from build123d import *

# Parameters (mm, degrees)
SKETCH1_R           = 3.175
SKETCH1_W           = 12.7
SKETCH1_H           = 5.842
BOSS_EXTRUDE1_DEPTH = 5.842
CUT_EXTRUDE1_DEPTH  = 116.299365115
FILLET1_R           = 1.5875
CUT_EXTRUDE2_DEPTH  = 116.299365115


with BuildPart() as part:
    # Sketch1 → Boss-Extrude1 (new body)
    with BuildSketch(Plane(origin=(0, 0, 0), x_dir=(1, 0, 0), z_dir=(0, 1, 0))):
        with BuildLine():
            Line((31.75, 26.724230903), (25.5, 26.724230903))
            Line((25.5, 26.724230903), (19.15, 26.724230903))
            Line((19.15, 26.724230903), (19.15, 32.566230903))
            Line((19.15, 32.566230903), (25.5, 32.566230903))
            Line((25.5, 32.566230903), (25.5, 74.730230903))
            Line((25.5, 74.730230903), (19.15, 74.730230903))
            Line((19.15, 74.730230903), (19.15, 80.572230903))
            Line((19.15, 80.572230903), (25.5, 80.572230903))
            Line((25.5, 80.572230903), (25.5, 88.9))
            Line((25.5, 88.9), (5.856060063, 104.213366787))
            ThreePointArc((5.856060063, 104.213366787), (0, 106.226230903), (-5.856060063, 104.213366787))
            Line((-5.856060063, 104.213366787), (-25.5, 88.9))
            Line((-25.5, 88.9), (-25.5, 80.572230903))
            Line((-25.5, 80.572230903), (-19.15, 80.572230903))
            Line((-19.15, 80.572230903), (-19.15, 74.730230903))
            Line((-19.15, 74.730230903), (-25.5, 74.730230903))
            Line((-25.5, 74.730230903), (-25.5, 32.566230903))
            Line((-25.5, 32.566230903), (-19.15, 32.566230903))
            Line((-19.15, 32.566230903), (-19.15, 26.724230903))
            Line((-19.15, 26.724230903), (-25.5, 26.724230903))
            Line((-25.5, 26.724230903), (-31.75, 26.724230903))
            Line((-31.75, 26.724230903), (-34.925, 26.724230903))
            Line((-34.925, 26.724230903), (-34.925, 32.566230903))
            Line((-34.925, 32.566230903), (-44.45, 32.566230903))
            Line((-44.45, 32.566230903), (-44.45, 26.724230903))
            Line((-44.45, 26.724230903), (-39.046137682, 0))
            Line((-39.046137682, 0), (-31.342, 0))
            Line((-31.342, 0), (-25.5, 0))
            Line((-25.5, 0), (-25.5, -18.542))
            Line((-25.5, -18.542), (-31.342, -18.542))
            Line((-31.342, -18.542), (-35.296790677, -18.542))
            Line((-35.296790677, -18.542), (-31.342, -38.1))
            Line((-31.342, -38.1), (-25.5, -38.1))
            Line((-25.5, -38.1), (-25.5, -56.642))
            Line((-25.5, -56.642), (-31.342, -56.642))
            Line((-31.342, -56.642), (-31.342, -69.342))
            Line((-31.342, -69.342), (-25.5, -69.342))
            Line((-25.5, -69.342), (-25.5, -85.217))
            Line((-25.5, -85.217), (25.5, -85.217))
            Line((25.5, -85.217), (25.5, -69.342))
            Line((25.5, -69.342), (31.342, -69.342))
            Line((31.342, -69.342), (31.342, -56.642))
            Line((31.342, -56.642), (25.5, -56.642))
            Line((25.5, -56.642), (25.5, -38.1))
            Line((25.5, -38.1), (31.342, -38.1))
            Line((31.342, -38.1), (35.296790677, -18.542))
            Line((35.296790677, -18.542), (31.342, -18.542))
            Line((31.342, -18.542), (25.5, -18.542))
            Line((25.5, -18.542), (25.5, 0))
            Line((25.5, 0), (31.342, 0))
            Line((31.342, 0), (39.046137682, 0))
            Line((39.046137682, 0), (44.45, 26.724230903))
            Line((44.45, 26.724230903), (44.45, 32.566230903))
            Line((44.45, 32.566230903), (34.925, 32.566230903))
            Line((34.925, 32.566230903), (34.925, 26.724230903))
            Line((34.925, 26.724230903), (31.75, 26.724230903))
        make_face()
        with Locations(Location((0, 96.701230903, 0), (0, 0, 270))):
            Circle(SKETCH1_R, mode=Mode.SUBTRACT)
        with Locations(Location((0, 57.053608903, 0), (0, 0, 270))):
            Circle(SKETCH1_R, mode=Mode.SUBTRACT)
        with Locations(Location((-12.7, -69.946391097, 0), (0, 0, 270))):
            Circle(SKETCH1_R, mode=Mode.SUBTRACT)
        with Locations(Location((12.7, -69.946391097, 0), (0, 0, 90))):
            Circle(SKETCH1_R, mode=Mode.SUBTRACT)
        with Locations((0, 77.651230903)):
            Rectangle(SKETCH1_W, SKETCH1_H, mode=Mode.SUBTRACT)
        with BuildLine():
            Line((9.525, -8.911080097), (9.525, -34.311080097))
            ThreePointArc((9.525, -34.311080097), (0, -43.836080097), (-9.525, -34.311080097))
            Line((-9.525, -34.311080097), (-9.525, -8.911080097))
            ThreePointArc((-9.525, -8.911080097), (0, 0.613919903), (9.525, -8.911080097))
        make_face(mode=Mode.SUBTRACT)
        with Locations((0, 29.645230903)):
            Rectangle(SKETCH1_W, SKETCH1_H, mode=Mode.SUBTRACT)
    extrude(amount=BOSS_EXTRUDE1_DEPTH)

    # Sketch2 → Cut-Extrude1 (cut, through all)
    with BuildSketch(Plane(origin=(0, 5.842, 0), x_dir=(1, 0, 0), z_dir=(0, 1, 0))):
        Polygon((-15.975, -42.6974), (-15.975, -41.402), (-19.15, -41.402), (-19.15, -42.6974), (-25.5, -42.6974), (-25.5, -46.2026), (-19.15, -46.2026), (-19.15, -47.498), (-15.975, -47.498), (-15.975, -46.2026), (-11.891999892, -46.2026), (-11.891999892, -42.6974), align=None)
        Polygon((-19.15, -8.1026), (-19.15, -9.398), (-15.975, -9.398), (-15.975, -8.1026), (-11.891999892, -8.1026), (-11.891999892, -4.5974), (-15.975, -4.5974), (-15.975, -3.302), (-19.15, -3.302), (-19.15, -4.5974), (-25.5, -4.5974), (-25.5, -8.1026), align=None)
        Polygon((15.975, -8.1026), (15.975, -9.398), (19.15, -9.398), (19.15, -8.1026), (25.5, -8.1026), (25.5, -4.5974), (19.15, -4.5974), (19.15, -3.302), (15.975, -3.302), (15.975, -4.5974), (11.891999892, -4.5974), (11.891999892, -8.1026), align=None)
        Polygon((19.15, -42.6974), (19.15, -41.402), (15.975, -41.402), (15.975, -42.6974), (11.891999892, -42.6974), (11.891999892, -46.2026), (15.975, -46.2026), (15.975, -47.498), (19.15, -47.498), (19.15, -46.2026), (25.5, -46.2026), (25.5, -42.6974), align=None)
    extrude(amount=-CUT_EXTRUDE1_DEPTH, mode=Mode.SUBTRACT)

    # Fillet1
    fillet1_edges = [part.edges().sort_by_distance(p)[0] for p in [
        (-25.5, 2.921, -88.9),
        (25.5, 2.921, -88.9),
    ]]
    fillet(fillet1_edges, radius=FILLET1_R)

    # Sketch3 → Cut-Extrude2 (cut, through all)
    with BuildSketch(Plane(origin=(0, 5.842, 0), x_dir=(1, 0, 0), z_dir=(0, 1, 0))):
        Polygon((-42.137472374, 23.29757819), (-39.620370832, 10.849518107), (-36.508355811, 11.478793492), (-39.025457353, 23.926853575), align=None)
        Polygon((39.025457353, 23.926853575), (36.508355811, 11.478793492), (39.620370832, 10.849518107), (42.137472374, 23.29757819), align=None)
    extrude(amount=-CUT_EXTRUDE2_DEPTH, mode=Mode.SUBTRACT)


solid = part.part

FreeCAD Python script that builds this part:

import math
import FreeCAD as App
import Part
import Sketcher
from FreeCAD import Vector
Q = App.Units.Quantity


def edges_at(feature, points):
    """Names of the edges that pass closest to the given points."""
    edges = feature.Shape.Edges
    near = lambda p: min(range(len(edges)), key=lambda i: edges[i].distToShape(Part.Vertex(*p))[0])
    return sorted({f"Edge{near(p) + 1}" for p in points})

doc = App.newDocument("Part")
body = doc.addObject("PartDesign::Body", "Body")

sketch1 = body.newObject("Sketcher::SketchObject", "Sketch")
sketch1.AttachmentSupport = (doc.getObject("XZ_Plane"), [""])
sketch1.MapMode = "FlatFace"
sketch1.addGeometry([
    Part.LineSegment(Vector(19.1, -26.7, 0), Vector(19.1, -32.6, 0)),
    Part.LineSegment(Vector(19.1, -32.6, 0), Vector(25.5, -32.6, 0)),
    Part.LineSegment(Vector(25.5, -32.6, 0), Vector(25.5, -74.7, 0)),
    Part.LineSegment(Vector(25.5, -74.7, 0), Vector(19.1, -74.7, 0)),
    Part.LineSegment(Vector(19.1, -74.7, 0), Vector(19.1, -80.6, 0)),
    Part.LineSegment(Vector(19.1, -80.6, 0), Vector(25.5, -80.6, 0)),
    Part.LineSegment(Vector(25.5, -80.6, 0), Vector(25.5, -88.9, 0)),
    Part.LineSegment(Vector(25.5, -88.9, 0), Vector(5.9, -104.2, 0)),
    Part.ArcOfCircle(Part.Circle(Vector(0, -96.7, 0), Vector(0, 0, 1), 9.5), math.radians(-128), math.radians(-52)),
    Part.LineSegment(Vector(-5.9, -104.2, 0), Vector(-25.5, -88.9, 0)),
    Part.LineSegment(Vector(-25.5, -88.9, 0), Vector(-25.5, -80.6, 0)),
    Part.LineSegment(Vector(-25.5, -80.6, 0), Vector(-19.1, -80.6, 0)),
    Part.LineSegment(Vector(-19.1, -80.6, 0), Vector(-19.1, -74.7, 0)),
    Part.LineSegment(Vector(-19.1, -74.7, 0), Vector(-25.5, -74.7, 0)),
    Part.LineSegment(Vector(-25.5, -74.7, 0), Vector(-25.5, -32.6, 0)),
    Part.LineSegment(Vector(-25.5, -32.6, 0), Vector(-19.1, -32.6, 0)),
    Part.LineSegment(Vector(-19.1, -32.6, 0), Vector(-19.1, -26.7, 0)),
    Part.LineSegment(Vector(-19.1, -26.7, 0), Vector(-34.9, -26.7, 0)),
    Part.LineSegment(Vector(-34.9, -26.7, 0), Vector(-34.9, -32.6, 0)),
    Part.LineSegment(Vector(-34.9, -32.6, 0), Vector(-44.5, -32.6, 0)),
    Part.LineSegment(Vector(-44.5, -32.6, 0), Vector(-44.5, -26.7, 0)),
    Part.LineSegment(Vector(-44.5, -26.7, 0), Vector(-39, 0, 0)),
    Part.LineSegment(Vector(-39, 0, 0), Vector(-25.5, 0, 0)),
    Part.LineSegment(Vector(-25.5, 0, 0), Vector(-25.5, 18.5, 0)),
    Part.LineSegment(Vector(-25.5, 18.5, 0), Vector(-35.3, 18.5, 0)),
    Part.LineSegment(Vector(-35.3, 18.5, 0), Vector(-31.3, 38.1, 0)),
    Part.LineSegment(Vector(-31.3, 38.1, 0), Vector(-25.5, 38.1, 0)),
    Part.LineSegment(Vector(-25.5, 38.1, 0), Vector(-25.5, 56.6, 0)),
    Part.LineSegment(Vector(-25.5, 56.6, 0), Vector(-31.3, 56.6, 0)),
    Part.LineSegment(Vector(-31.3, 56.6, 0), Vector(-31.3, 69.3, 0)),
    Part.LineSegment(Vector(-31.3, 69.3, 0), Vector(-25.5, 69.3, 0)),
    Part.LineSegment(Vector(-25.5, 69.3, 0), Vector(-25.5, 85.2, 0)),
    Part.LineSegment(Vector(-25.5, 85.2, 0), Vector(25.5, 85.2, 0)),
    Part.LineSegment(Vector(25.5, 85.2, 0), Vector(25.5, 69.3, 0)),
    Part.LineSegment(Vector(25.5, 69.3, 0), Vector(31.3, 69.3, 0)),
    Part.LineSegment(Vector(31.3, 69.3, 0), Vector(31.3, 56.6, 0)),
    Part.LineSegment(Vector(31.3, 56.6, 0), Vector(25.5, 56.6, 0)),
    Part.LineSegment(Vector(25.5, 56.6, 0), Vector(25.5, 38.1, 0)),
    Part.LineSegment(Vector(25.5, 38.1, 0), Vector(31.3, 38.1, 0)),
    Part.LineSegment(Vector(31.3, 38.1, 0), Vector(35.3, 18.5, 0)),
    Part.LineSegment(Vector(35.3, 18.5, 0), Vector(25.5, 18.5, 0)),
    Part.LineSegment(Vector(25.5, 18.5, 0), Vector(25.5, 0, 0)),
    Part.LineSegment(Vector(25.5, 0, 0), Vector(39, 0, 0)),
    Part.LineSegment(Vector(39, 0, 0), Vector(44.5, -26.7, 0)),
    Part.LineSegment(Vector(44.5, -26.7, 0), Vector(44.5, -32.6, 0)),
    Part.LineSegment(Vector(44.5, -32.6, 0), Vector(34.9, -32.6, 0)),
    Part.LineSegment(Vector(34.9, -32.6, 0), Vector(34.9, -26.7, 0)),
    Part.LineSegment(Vector(34.9, -26.7, 0), Vector(19.1, -26.7, 0)),
    Part.Circle(Vector(-12.7, 69.9, 0), Vector(0, 0, 1), 3.2),
    Part.Circle(Vector(12.7, 69.9, 0), Vector(0, 0, 1), 3.2),
    Part.ArcOfCircle(Part.Circle(Vector(0, 8.9, 0), Vector(0, 0, 1), 9.5), math.radians(180), math.radians(360)),
    Part.LineSegment(Vector(9.5, 8.9, 0), Vector(9.5, 34.3, 0)),
    Part.ArcOfCircle(Part.Circle(Vector(0, 34.3, 0), Vector(0, 0, 1), 9.5), math.radians(0), math.radians(180)),
    Part.LineSegment(Vector(-9.5, 34.3, 0), Vector(-9.5, 8.9, 0)),
    Part.LineSegment(Vector(6.3, -26.7, 0), Vector(-6.3, -26.7, 0)),
    Part.LineSegment(Vector(-6.3, -26.7, 0), Vector(-6.3, -32.6, 0)),
    Part.LineSegment(Vector(-6.3, -32.6, 0), Vector(6.3, -32.6, 0)),
    Part.LineSegment(Vector(6.3, -32.6, 0), Vector(6.3, -26.7, 0)),
    Part.Circle(Vector(0, -57.1, 0), Vector(0, 0, 1), 3.2),
    Part.LineSegment(Vector(6.3, -74.7, 0), Vector(-6.3, -74.7, 0)),
    Part.LineSegment(Vector(-6.3, -74.7, 0), Vector(-6.3, -80.6, 0)),
    Part.LineSegment(Vector(-6.3, -80.6, 0), Vector(6.3, -80.6, 0)),
    Part.LineSegment(Vector(6.3, -80.6, 0), Vector(6.3, -74.7, 0)),
    Part.Circle(Vector(0, -96.7, 0), Vector(0, 0, 1), 3.2),
], False)
sketch1.addConstraint([
    Sketcher.Constraint("Coincident", 0, 2, 1, 1),
    Sketcher.Constraint("Coincident", 1, 2, 2, 1),
    Sketcher.Constraint("Coincident", 2, 2, 3, 1),
    Sketcher.Constraint("Coincident", 3, 2, 4, 1),
    Sketcher.Constraint("Coincident", 4, 2, 5, 1),
    Sketcher.Constraint("Coincident", 5, 2, 6, 1),
    Sketcher.Constraint("Coincident", 6, 2, 7, 1),
    Sketcher.Constraint("Tangent", 7, 2, 8, 2),
    Sketcher.Constraint("Tangent", 8, 1, 9, 1),
    Sketcher.Constraint("Coincident", 9, 2, 10, 1),
    Sketcher.Constraint("Coincident", 10, 2, 11, 1),
    Sketcher.Constraint("Coincident", 11, 2, 12, 1),
    Sketcher.Constraint("Coincident", 12, 2, 13, 1),
    Sketcher.Constraint("Coincident", 13, 2, 14, 1),
    Sketcher.Constraint("Coincident", 14, 2, 15, 1),
    Sketcher.Constraint("Coincident", 15, 2, 16, 1),
    Sketcher.Constraint("Coincident", 16, 2, 17, 1),
    Sketcher.Constraint("Coincident", 17, 2, 18, 1),
    Sketcher.Constraint("Coincident", 18, 2, 19, 1),
    Sketcher.Constraint("Coincident", 19, 2, 20, 1),
    Sketcher.Constraint("Coincident", 20, 2, 21, 1),
    Sketcher.Constraint("Coincident", 21, 2, 22, 1),
    Sketcher.Constraint("Coincident", 22, 2, 23, 1),
    Sketcher.Constraint("Coincident", 23, 2, 24, 1),
    Sketcher.Constraint("Coincident", 24, 2, 25, 1),
    Sketcher.Constraint("Coincident", 25, 2, 26, 1),
    Sketcher.Constraint("Coincident", 26, 2, 27, 1),
    Sketcher.Constraint("Coincident", 27, 2, 28, 1),
    Sketcher.Constraint("Coincident", 28, 2, 29, 1),
    Sketcher.Constraint("Coincident", 29, 2, 30, 1),
    Sketcher.Constraint("Coincident", 30, 2, 31, 1),
    Sketcher.Constraint("Coincident", 31, 2, 32, 1),
    Sketcher.Constraint("Coincident", 32, 2, 33, 1),
    Sketcher.Constraint("Coincident", 33, 2, 34, 1),
    Sketcher.Constraint("Coincident", 34, 2, 35, 1),
    Sketcher.Constraint("Coincident", 35, 2, 36, 1),
    Sketcher.Constraint("Coincident", 36, 2, 37, 1),
    Sketcher.Constraint("Coincident", 37, 2, 38, 1),
    Sketcher.Constraint("Coincident", 38, 2, 39, 1),
    Sketcher.Constraint("Coincident", 39, 2, 40, 1),
    Sketcher.Constraint("Coincident", 40, 2, 41, 1),
    Sketcher.Constraint("Coincident", 41, 2, 42, 1),
    Sketcher.Constraint("Coincident", 42, 2, 43, 1),
    Sketcher.Constraint("Coincident", 43, 2, 44, 1),
    Sketcher.Constraint("Coincident", 44, 2, 45, 1),
    Sketcher.Constraint("Coincident", 45, 2, 46, 1),
    Sketcher.Constraint("Coincident", 46, 2, 47, 1),
    Sketcher.Constraint("Coincident", 47, 2, 0, 1),
    Sketcher.Constraint("Tangent", 50, 2, 51, 1),
    Sketcher.Constraint("Tangent", 51, 2, 52, 1),
    Sketcher.Constraint("Tangent", 52, 2, 53, 1),
    Sketcher.Constraint("Tangent", 53, 2, 50, 1),
    Sketcher.Constraint("Coincident", 54, 2, 55, 1),
    Sketcher.Constraint("Coincident", 55, 2, 56, 1),
    Sketcher.Constraint("Coincident", 56, 2, 57, 1),
    Sketcher.Constraint("Coincident", 57, 2, 54, 1),
    Sketcher.Constraint("Coincident", 59, 2, 60, 1),
    Sketcher.Constraint("Coincident", 60, 2, 61, 1),
    Sketcher.Constraint("Coincident", 61, 2, 62, 1),
    Sketcher.Constraint("Coincident", 62, 2, 59, 1),
    Sketcher.Constraint("Vertical", 0),
    Sketcher.Constraint("Horizontal", 1),
    Sketcher.Constraint("Vertical", 2),
    Sketcher.Constraint("Horizontal", 3),
    Sketcher.Constraint("Vertical", 4),
    Sketcher.Constraint("Horizontal", 5),
    Sketcher.Constraint("Vertical", 6),
    Sketcher.Constraint("Vertical", 10),
    Sketcher.Constraint("Horizontal", 11),
    Sketcher.Constraint("Vertical", 12),
    Sketcher.Constraint("Horizontal", 13),
    Sketcher.Constraint("Vertical", 14),
    Sketcher.Constraint("Horizontal", 15),
    Sketcher.Constraint("Vertical", 16),
    Sketcher.Constraint("Horizontal", 17),
    Sketcher.Constraint("Vertical", 18),
    Sketcher.Constraint("Horizontal", 19),
    Sketcher.Constraint("Vertical", 20),
    Sketcher.Constraint("Horizontal", 22),
    Sketcher.Constraint("Vertical", 23),
    Sketcher.Constraint("Horizontal", 24),
    Sketcher.Constraint("Horizontal", 26),
    Sketcher.Constraint("Vertical", 27),
    Sketcher.Constraint("Horizontal", 28),
    Sketcher.Constraint("Vertical", 29),
    Sketcher.Constraint("Horizontal", 30),
    Sketcher.Constraint("Vertical", 31),
    Sketcher.Constraint("Horizontal", 32),
    Sketcher.Constraint("Vertical", 33),
    Sketcher.Constraint("Horizontal", 34),
    Sketcher.Constraint("Vertical", 35),
    Sketcher.Constraint("Horizontal", 36),
    Sketcher.Constraint("Vertical", 37),
    Sketcher.Constraint("Horizontal", 38),
    Sketcher.Constraint("Horizontal", 40),
    Sketcher.Constraint("Vertical", 41),
    Sketcher.Constraint("Horizontal", 42),
    Sketcher.Constraint("Vertical", 44),
    Sketcher.Constraint("Horizontal", 45),
    Sketcher.Constraint("Vertical", 46),
    Sketcher.Constraint("Horizontal", 47),
    Sketcher.Constraint("Vertical", 51),
    Sketcher.Constraint("Vertical", 53),
    Sketcher.Constraint("Horizontal", 54),
    Sketcher.Constraint("Vertical", 55),
    Sketcher.Constraint("Horizontal", 56),
    Sketcher.Constraint("Vertical", 57),
    Sketcher.Constraint("Horizontal", 59),
    Sketcher.Constraint("Vertical", 60),
    Sketcher.Constraint("Horizontal", 61),
    Sketcher.Constraint("Vertical", 62),
    Sketcher.Constraint("Coincident", 63, 3, 8, 3),
    Sketcher.Constraint("Equal", 48, 49),
    Sketcher.Constraint("Equal", 8, 50),
    Sketcher.Constraint("Equal", 49, 58),
    Sketcher.Constraint("Equal", 58, 63),
    Sketcher.Constraint("Symmetric", 22, 2, 41, 2, -1, 1),
    Sketcher.Constraint("Symmetric", 48, 3, 49, 3, -2),
    Sketcher.Constraint("Symmetric", 7, 2, 8, 1, -2),
    Sketcher.Constraint("Symmetric", 5, 2, 10, 2, -2),
    Sketcher.Constraint("Symmetric", 3, 2, 12, 2, -2),
    Sketcher.Constraint("Symmetric", 1, 2, 14, 2, -2),
    Sketcher.Constraint("Symmetric", 30, 2, 33, 2, -2),
    Sketcher.Constraint("Symmetric", 28, 2, 35, 2, -2),
    Sketcher.Constraint("Symmetric", 26, 2, 37, 2, -2),
    Sketcher.Constraint("Symmetric", 24, 2, 39, 2, -2),
    Sketcher.Constraint("Symmetric", 21, 2, 42, 2, -2),
    Sketcher.Constraint("Symmetric", 20, 2, 43, 2, -2),
    Sketcher.Constraint("Symmetric", 18, 2, 45, 2, -2),
    Sketcher.Constraint("Symmetric", 16, 2, 47, 2, -2),
    Sketcher.Constraint("PointOnObject", 50, 3, -2),
    Sketcher.Constraint("PointOnObject", 58, 3, -2),
    Sketcher.Constraint("Parallel", 21, 25),
    Sketcher.Constraint("Parallel", 39, 43),
    Sketcher.Constraint("Horizontal", 15, 2, 18, 2),
    Sketcher.Constraint("Horizontal", 17, 2, 20, 2),
    Sketcher.Constraint("Horizontal", 47, 2, 54, 2),
    Sketcher.Constraint("Horizontal", 45, 2, 55, 2),
    Sketcher.Constraint("Horizontal", 13, 2, 59, 2),
    Sketcher.Constraint("Horizontal", 11, 2, 60, 2),
    Sketcher.Constraint("Vertical", 0, 2, 3, 2),
    Sketcher.Constraint("Vertical", 2, 2, 5, 2),
    Sketcher.Constraint("Vertical", 14, 2, 22, 2),
    Sketcher.Constraint("Vertical", 23, 2, 26, 2),
    Sketcher.Constraint("Vertical", 25, 2, 28, 2),
    Sketcher.Constraint("Vertical", 27, 2, 30, 2),
    Sketcher.Constraint("Vertical", 55, 2, 59, 2),
    Sketcher.Constraint("Vertical", 57, 2, 61, 2),
    Sketcher.Constraint("Equal", 38, 0),
    Sketcher.Constraint("Equal", 0, 4),
    Sketcher.Constraint("Equal", 23, 27),
    Sketcher.Constraint("Equal", 61, 29),
    Sketcher.Constraint("Diameter", 48, Q("0.25 in")),
    Sketcher.Constraint("DistanceY", 51, 1, 51, 2, Q("1 in")),
    Sketcher.Constraint("DistanceX", 54, 2, 54, 1, Q("0.5 in")),
    Sketcher.Constraint("Radius", 8, Q("0.375 in")),
    Sketcher.Constraint("DistanceX", 1, 1, 1, 2, Q("0.25 in")),
    Sketcher.Constraint("DistanceX", 26, 1, 26, 2, Q("0.23 in")),
    Sketcher.Constraint("DistanceY", 2, 2, 2, 1, Q("1.66 in")),
    Sketcher.Constraint("DistanceY", 23, 1, 23, 2, Q("0.73 in")),
    Sketcher.Constraint("DistanceX", 48, 3, -1, 1, Q("0.5 in")),
    Sketcher.Constraint("DistanceY", 6, 2, -1, 1, Q("3.5 in")),
    Sketcher.Constraint("DistanceY", -1, 1, 25, 2, Q("1.5 in")),
    Sketcher.Constraint("DistanceX", 19, 2, 19, 1, Q("0.375 in")),
    Sketcher.Constraint("DistanceY", 31, 1, 31, 2, Q("0.625 in")),
    Sketcher.Constraint("DistanceX", 19, 2, -1, 1, Q("1.75 in")),
    Sketcher.Constraint("DistanceX", 54, 2, -1, 1, Q("0.25 in")),
    Sketcher.Constraint("DistanceX", 17, 2, 17, 1, Q("15.775 mm")),
    Sketcher.Constraint("Distance", 7, Q("24.9075 mm")),
    Sketcher.Constraint("DistanceX", 24, 2, 24, 1, Q("9.796791 mm")),
    Sketcher.Constraint("DistanceY", 6, 2, 6, 1, Q("8.327769 mm")),
    Sketcher.Constraint("DistanceY", -1, 1, 48, 3, Q("69.946391 mm")),
    Sketcher.Constraint("DistanceY", -1, 1, 50, 3, Q("8.91108 mm")),
    Sketcher.Constraint("DistanceY", 58, 3, -1, 1, Q("57.053609 mm")),
])
pad1 = body.newObject("PartDesign::Pad", "Pad")
pad1.Profile = sketch1
pad1.Length = Q("0.23 in")
pad1.Reversed = True

sketch2 = body.newObject("Sketcher::SketchObject", "Sketch001")
sketch2.AttachmentSupport = (doc.getObject("XZ_Plane"), [""])
sketch2.MapMode = "FlatFace"
sketch2.AttachmentOffset = App.Placement(Vector(0, 0, -0.23 * 25.4), App.Rotation())
sketch2.addGeometry([
    Part.LineSegment(Vector(-16, 42.7, 0), Vector(-16, 41.4, 0)),
    Part.LineSegment(Vector(-16, 41.4, 0), Vector(-19.1, 41.4, 0)),
    Part.LineSegment(Vector(-19.1, 41.4, 0), Vector(-19.1, 42.7, 0)),
    Part.LineSegment(Vector(-19.1, 42.7, 0), Vector(-25.5, 42.7, 0)),
    Part.LineSegment(Vector(-25.5, 42.7, 0), Vector(-25.5, 46.2, 0)),
    Part.LineSegment(Vector(-25.5, 46.2, 0), Vector(-19.1, 46.2, 0)),
    Part.LineSegment(Vector(-19.1, 46.2, 0), Vector(-19.1, 47.5, 0)),
    Part.LineSegment(Vector(-19.1, 47.5, 0), Vector(-16, 47.5, 0)),
    Part.LineSegment(Vector(-16, 47.5, 0), Vector(-16, 46.2, 0)),
    Part.LineSegment(Vector(-16, 46.2, 0), Vector(-11.9, 46.2, 0)),
    Part.LineSegment(Vector(-11.9, 46.2, 0), Vector(-11.9, 42.7, 0)),
    Part.LineSegment(Vector(-11.9, 42.7, 0), Vector(-16, 42.7, 0)),
    Part.LineSegment(Vector(-19.1, 8.1, 0), Vector(-19.1, 9.4, 0)),
    Part.LineSegment(Vector(-19.1, 9.4, 0), Vector(-16, 9.4, 0)),
    Part.LineSegment(Vector(-16, 9.4, 0), Vector(-16, 8.1, 0)),
    Part.LineSegment(Vector(-16, 8.1, 0), Vector(-11.9, 8.1, 0)),
    Part.LineSegment(Vector(-11.9, 8.1, 0), Vector(-11.9, 4.6, 0)),
    Part.LineSegment(Vector(-11.9, 4.6, 0), Vector(-16, 4.6, 0)),
    Part.LineSegment(Vector(-16, 4.6, 0), Vector(-16, 3.3, 0)),
    Part.LineSegment(Vector(-16, 3.3, 0), Vector(-19.1, 3.3, 0)),
    Part.LineSegment(Vector(-19.1, 3.3, 0), Vector(-19.1, 4.6, 0)),
    Part.LineSegment(Vector(-19.1, 4.6, 0), Vector(-25.5, 4.6, 0)),
    Part.LineSegment(Vector(-25.5, 4.6, 0), Vector(-25.5, 8.1, 0)),
    Part.LineSegment(Vector(-25.5, 8.1, 0), Vector(-19.1, 8.1, 0)),
    Part.LineSegment(Vector(16, 8.1, 0), Vector(16, 9.4, 0)),
    Part.LineSegment(Vector(16, 9.4, 0), Vector(19.1, 9.4, 0)),
    Part.LineSegment(Vector(19.1, 9.4, 0), Vector(19.1, 8.1, 0)),
    Part.LineSegment(Vector(19.1, 8.1, 0), Vector(25.5, 8.1, 0)),
    Part.LineSegment(Vector(25.5, 8.1, 0), Vector(25.5, 4.6, 0)),
    Part.LineSegment(Vector(25.5, 4.6, 0), Vector(19.1, 4.6, 0)),
    Part.LineSegment(Vector(19.1, 4.6, 0), Vector(19.1, 3.3, 0)),
    Part.LineSegment(Vector(19.1, 3.3, 0), Vector(16, 3.3, 0)),
    Part.LineSegment(Vector(16, 3.3, 0), Vector(16, 4.6, 0)),
    Part.LineSegment(Vector(16, 4.6, 0), Vector(11.9, 4.6, 0)),
    Part.LineSegment(Vector(11.9, 4.6, 0), Vector(11.9, 8.1, 0)),
    Part.LineSegment(Vector(11.9, 8.1, 0), Vector(16, 8.1, 0)),
    Part.LineSegment(Vector(19.1, 42.7, 0), Vector(19.1, 41.4, 0)),
    Part.LineSegment(Vector(19.1, 41.4, 0), Vector(16, 41.4, 0)),
    Part.LineSegment(Vector(16, 41.4, 0), Vector(16, 42.7, 0)),
    Part.LineSegment(Vector(16, 42.7, 0), Vector(11.9, 42.7, 0)),
    Part.LineSegment(Vector(11.9, 42.7, 0), Vector(11.9, 46.2, 0)),
    Part.LineSegment(Vector(11.9, 46.2, 0), Vector(16, 46.2, 0)),
    Part.LineSegment(Vector(16, 46.2, 0), Vector(16, 47.5, 0)),
    Part.LineSegment(Vector(16, 47.5, 0), Vector(19.1, 47.5, 0)),
    Part.LineSegment(Vector(19.1, 47.5, 0), Vector(19.1, 46.2, 0)),
    Part.LineSegment(Vector(19.1, 46.2, 0), Vector(25.5, 46.2, 0)),
    Part.LineSegment(Vector(25.5, 46.2, 0), Vector(25.5, 42.7, 0)),
    Part.LineSegment(Vector(25.5, 42.7, 0), Vector(19.1, 42.7, 0)),
], False)
sketch2.addConstraint([
    Sketcher.Constraint("Coincident", 0, 2, 1, 1),
    Sketcher.Constraint("Coincident", 1, 2, 2, 1),
    Sketcher.Constraint("Coincident", 2, 2, 3, 1),
    Sketcher.Constraint("Coincident", 3, 2, 4, 1),
    Sketcher.Constraint("Coincident", 4, 2, 5, 1),
    Sketcher.Constraint("Coincident", 5, 2, 6, 1),
    Sketcher.Constraint("Coincident", 6, 2, 7, 1),
    Sketcher.Constraint("Coincident", 7, 2, 8, 1),
    Sketcher.Constraint("Coincident", 8, 2, 9, 1),
    Sketcher.Constraint("Coincident", 9, 2, 10, 1),
    Sketcher.Constraint("Coincident", 10, 2, 11, 1),
    Sketcher.Constraint("Coincident", 11, 2, 0, 1),
    Sketcher.Constraint("Coincident", 12, 2, 13, 1),
    Sketcher.Constraint("Coincident", 13, 2, 14, 1),
    Sketcher.Constraint("Coincident", 14, 2, 15, 1),
    Sketcher.Constraint("Coincident", 15, 2, 16, 1),
    Sketcher.Constraint("Coincident", 16, 2, 17, 1),
    Sketcher.Constraint("Coincident", 17, 2, 18, 1),
    Sketcher.Constraint("Coincident", 18, 2, 19, 1),
    Sketcher.Constraint("Coincident", 19, 2, 20, 1),
    Sketcher.Constraint("Coincident", 20, 2, 21, 1),
    Sketcher.Constraint("Coincident", 21, 2, 22, 1),
    Sketcher.Constraint("Coincident", 22, 2, 23, 1),
    Sketcher.Constraint("Coincident", 23, 2, 12, 1),
    Sketcher.Constraint("Coincident", 24, 2, 25, 1),
    Sketcher.Constraint("Coincident", 25, 2, 26, 1),
    Sketcher.Constraint("Coincident", 26, 2, 27, 1),
    Sketcher.Constraint("Coincident", 27, 2, 28, 1),
    Sketcher.Constraint("Coincident", 28, 2, 29, 1),
    Sketcher.Constraint("Coincident", 29, 2, 30, 1),
    Sketcher.Constraint("Coincident", 30, 2, 31, 1),
    Sketcher.Constraint("Coincident", 31, 2, 32, 1),
    Sketcher.Constraint("Coincident", 32, 2, 33, 1),
    Sketcher.Constraint("Coincident", 33, 2, 34, 1),
    Sketcher.Constraint("Coincident", 34, 2, 35, 1),
    Sketcher.Constraint("Coincident", 35, 2, 24, 1),
    Sketcher.Constraint("Coincident", 36, 2, 37, 1),
    Sketcher.Constraint("Coincident", 37, 2, 38, 1),
    Sketcher.Constraint("Coincident", 38, 2, 39, 1),
    Sketcher.Constraint("Coincident", 39, 2, 40, 1),
    Sketcher.Constraint("Coincident", 40, 2, 41, 1),
    Sketcher.Constraint("Coincident", 41, 2, 42, 1),
    Sketcher.Constraint("Coincident", 42, 2, 43, 1),
    Sketcher.Constraint("Coincident", 43, 2, 44, 1),
    Sketcher.Constraint("Coincident", 44, 2, 45, 1),
    Sketcher.Constraint("Coincident", 45, 2, 46, 1),
    Sketcher.Constraint("Coincident", 46, 2, 47, 1),
    Sketcher.Constraint("Coincident", 47, 2, 36, 1),
    Sketcher.Constraint("Vertical", 0),
    Sketcher.Constraint("Horizontal", 1),
    Sketcher.Constraint("Vertical", 2),
    Sketcher.Constraint("Horizontal", 3),
    Sketcher.Constraint("Vertical", 4),
    Sketcher.Constraint("Horizontal", 5),
    Sketcher.Constraint("Vertical", 6),
    Sketcher.Constraint("Horizontal", 7),
    Sketcher.Constraint("Vertical", 8),
    Sketcher.Constraint("Horizontal", 9),
    Sketcher.Constraint("Vertical", 10),
    Sketcher.Constraint("Horizontal", 11),
    Sketcher.Constraint("Vertical", 12),
    Sketcher.Constraint("Horizontal", 13),
    Sketcher.Constraint("Vertical", 14),
    Sketcher.Constraint("Horizontal", 15),
    Sketcher.Constraint("Vertical", 16),
    Sketcher.Constraint("Horizontal", 17),
    Sketcher.Constraint("Vertical", 18),
    Sketcher.Constraint("Horizontal", 19),
    Sketcher.Constraint("Vertical", 20),
    Sketcher.Constraint("Horizontal", 21),
    Sketcher.Constraint("Vertical", 22),
    Sketcher.Constraint("Horizontal", 23),
    Sketcher.Constraint("Vertical", 24),
    Sketcher.Constraint("Horizontal", 25),
    Sketcher.Constraint("Vertical", 26),
    Sketcher.Constraint("Horizontal", 27),
    Sketcher.Constraint("Vertical", 28),
    Sketcher.Constraint("Horizontal", 29),
    Sketcher.Constraint("Vertical", 30),
    Sketcher.Constraint("Horizontal", 31),
    Sketcher.Constraint("Vertical", 32),
    Sketcher.Constraint("Horizontal", 33),
    Sketcher.Constraint("Vertical", 34),
    Sketcher.Constraint("Horizontal", 35),
    Sketcher.Constraint("Vertical", 36),
    Sketcher.Constraint("Horizontal", 37),
    Sketcher.Constraint("Vertical", 38),
    Sketcher.Constraint("Horizontal", 39),
    Sketcher.Constraint("Vertical", 40),
    Sketcher.Constraint("Horizontal", 41),
    Sketcher.Constraint("Vertical", 42),
    Sketcher.Constraint("Horizontal", 43),
    Sketcher.Constraint("Vertical", 44),
    Sketcher.Constraint("Horizontal", 45),
    Sketcher.Constraint("Vertical", 46),
    Sketcher.Constraint("Horizontal", 47),
    Sketcher.Constraint("Symmetric", 13, 2, 24, 2, -2),
    Sketcher.Constraint("Symmetric", 23, 2, 26, 2, -2),
    Sketcher.Constraint("Symmetric", 21, 2, 28, 2, -2),
    Sketcher.Constraint("Symmetric", 19, 2, 30, 2, -2),
    Sketcher.Constraint("Symmetric", 17, 2, 32, 2, -2),
    Sketcher.Constraint("Symmetric", 15, 2, 34, 2, -2),
    Sketcher.Constraint("Symmetric", 1, 2, 36, 2, -2),
    Sketcher.Constraint("Symmetric", 11, 2, 38, 2, -2),
    Sketcher.Constraint("Symmetric", 9, 2, 40, 2, -2),
    Sketcher.Constraint("Symmetric", 7, 2, 42, 2, -2),
    Sketcher.Constraint("Symmetric", 5, 2, 44, 2, -2),
    Sketcher.Constraint("Symmetric", 3, 2, 46, 2, -2),
    Sketcher.Constraint("Horizontal", 5, 2, 8, 2),
    Sketcher.Constraint("Horizontal", 3, 2, 10, 2),
    Sketcher.Constraint("Horizontal", 17, 2, 20, 2),
    Sketcher.Constraint("Horizontal", 15, 2, 22, 2),
    Sketcher.Constraint("Vertical", 2, 2, 5, 2),
    Sketcher.Constraint("Vertical", 0, 2, 7, 2),
    Sketcher.Constraint("Vertical", 6, 2, 12, 2),
    Sketcher.Constraint("Vertical", 11, 2, 13, 2),
    Sketcher.Constraint("Vertical", 10, 2, 15, 2),
    Sketcher.Constraint("Vertical", 14, 2, 17, 2),
    Sketcher.Constraint("Vertical", 12, 2, 19, 2),
    Sketcher.Constraint("Vertical", 4, 2, 21, 2),
    Sketcher.Constraint("Equal", 2, 6),
    Sketcher.Constraint("Equal", 8, 12),
    Sketcher.Constraint("Equal", 10, 16),
    Sketcher.Constraint("Equal", 14, 18),
    Sketcher.Constraint("DistanceX", 3, 2, 3, 1, Q("0.25 in")),
    Sketcher.Constraint("DistanceX", 1, 2, 1, 1, Q("0.125 in")),
    Sketcher.Constraint("DistanceY", 0, 2, 0, 1, Q("0.051 in")),
    Sketcher.Constraint("DistanceY", 4, 1, 4, 2, Q("0.138 in")),
    Sketcher.Constraint("DistanceY", -1, 1, 0, 2, Q("1.63 in")),
    Sketcher.Constraint("DistanceY", -1, 1, 12, 2, Q("0.37 in")),
    Sketcher.Constraint("DistanceX", 9, 1, 9, 2, Q("4.083 mm")),
    Sketcher.Constraint("DistanceX", 0, 2, -1, 1, Q("15.975 mm")),
])
pocket1 = body.newObject("PartDesign::Pocket", "Pocket")
pocket1.Profile = sketch2
pocket1.Type = "ThroughAll"
pocket1.Reversed = True
doc.recompute()

fillet = body.newObject("PartDesign::Fillet", "Fillet")
fillet.Base = (pocket1, edges_at(pocket1, [(-25.5, 2.921, -88.9), (25.5, 2.921, -88.9)]))
fillet.Radius = Q("0.0625 in")

sketch3 = body.newObject("Sketcher::SketchObject", "Sketch002")
sketch3.AttachmentSupport = (doc.getObject("XZ_Plane"), [""])
sketch3.MapMode = "FlatFace"
sketch3.AttachmentOffset = App.Placement(Vector(0, 0, -0.23 * 25.4), App.Rotation())
sketch3.addGeometry([
    Part.LineSegment(Vector(-42.1, -23.3, 0), Vector(-39.6, -10.8, 0)),
    Part.LineSegment(Vector(-39.6, -10.8, 0), Vector(-36.5, -11.5, 0)),
    Part.LineSegment(Vector(-36.5, -11.5, 0), Vector(-39, -23.9, 0)),
    Part.LineSegment(Vector(-39, -23.9, 0), Vector(-42.1, -23.3, 0)),
    Part.LineSegment(Vector(39, -23.9, 0), Vector(36.5, -11.5, 0)),
    Part.LineSegment(Vector(36.5, -11.5, 0), Vector(39.6, -10.8, 0)),
    Part.LineSegment(Vector(39.6, -10.8, 0), Vector(42.1, -23.3, 0)),
    Part.LineSegment(Vector(42.1, -23.3, 0), Vector(39, -23.9, 0)),
], False)
sketch3.addConstraint([
    Sketcher.Constraint("Coincident", 0, 2, 1, 1),
    Sketcher.Constraint("Coincident", 1, 2, 2, 1),
    Sketcher.Constraint("Coincident", 2, 2, 3, 1),
    Sketcher.Constraint("Coincident", 3, 2, 0, 1),
    Sketcher.Constraint("Coincident", 4, 2, 5, 1),
    Sketcher.Constraint("Coincident", 5, 2, 6, 1),
    Sketcher.Constraint("Coincident", 6, 2, 7, 1),
    Sketcher.Constraint("Coincident", 7, 2, 4, 1),
    Sketcher.Constraint("Symmetric", 1, 2, 4, 2, -2),
    Sketcher.Constraint("Symmetric", 0, 2, 5, 2, -2),
    Sketcher.Constraint("Symmetric", 3, 2, 6, 2, -2),
    Sketcher.Constraint("Symmetric", 2, 2, 7, 2, -2),
    Sketcher.Constraint("Perpendicular", 0, 1),
    Sketcher.Constraint("Perpendicular", 1, 2),
    Sketcher.Constraint("Perpendicular", 2, 3),
    Sketcher.Constraint("Distance", 0, Q("0.5 in")),
    Sketcher.Constraint("Distance", 1, Q("0.125 in")),
    Sketcher.Constraint("DistanceX", 2, 2, 1, 2, Q("2.517102 mm")),
    Sketcher.Constraint("DistanceX", 0, 2, -1, 1, Q("39.620371 mm")),
    Sketcher.Constraint("DistanceY", 0, 2, -1, 1, Q("10.849518 mm")),
])
pocket2 = body.newObject("PartDesign::Pocket", "Pocket001")
pocket2.Profile = sketch3
pocket2.Type = "ThroughAll"
pocket2.Reversed = True

doc.recompute()
